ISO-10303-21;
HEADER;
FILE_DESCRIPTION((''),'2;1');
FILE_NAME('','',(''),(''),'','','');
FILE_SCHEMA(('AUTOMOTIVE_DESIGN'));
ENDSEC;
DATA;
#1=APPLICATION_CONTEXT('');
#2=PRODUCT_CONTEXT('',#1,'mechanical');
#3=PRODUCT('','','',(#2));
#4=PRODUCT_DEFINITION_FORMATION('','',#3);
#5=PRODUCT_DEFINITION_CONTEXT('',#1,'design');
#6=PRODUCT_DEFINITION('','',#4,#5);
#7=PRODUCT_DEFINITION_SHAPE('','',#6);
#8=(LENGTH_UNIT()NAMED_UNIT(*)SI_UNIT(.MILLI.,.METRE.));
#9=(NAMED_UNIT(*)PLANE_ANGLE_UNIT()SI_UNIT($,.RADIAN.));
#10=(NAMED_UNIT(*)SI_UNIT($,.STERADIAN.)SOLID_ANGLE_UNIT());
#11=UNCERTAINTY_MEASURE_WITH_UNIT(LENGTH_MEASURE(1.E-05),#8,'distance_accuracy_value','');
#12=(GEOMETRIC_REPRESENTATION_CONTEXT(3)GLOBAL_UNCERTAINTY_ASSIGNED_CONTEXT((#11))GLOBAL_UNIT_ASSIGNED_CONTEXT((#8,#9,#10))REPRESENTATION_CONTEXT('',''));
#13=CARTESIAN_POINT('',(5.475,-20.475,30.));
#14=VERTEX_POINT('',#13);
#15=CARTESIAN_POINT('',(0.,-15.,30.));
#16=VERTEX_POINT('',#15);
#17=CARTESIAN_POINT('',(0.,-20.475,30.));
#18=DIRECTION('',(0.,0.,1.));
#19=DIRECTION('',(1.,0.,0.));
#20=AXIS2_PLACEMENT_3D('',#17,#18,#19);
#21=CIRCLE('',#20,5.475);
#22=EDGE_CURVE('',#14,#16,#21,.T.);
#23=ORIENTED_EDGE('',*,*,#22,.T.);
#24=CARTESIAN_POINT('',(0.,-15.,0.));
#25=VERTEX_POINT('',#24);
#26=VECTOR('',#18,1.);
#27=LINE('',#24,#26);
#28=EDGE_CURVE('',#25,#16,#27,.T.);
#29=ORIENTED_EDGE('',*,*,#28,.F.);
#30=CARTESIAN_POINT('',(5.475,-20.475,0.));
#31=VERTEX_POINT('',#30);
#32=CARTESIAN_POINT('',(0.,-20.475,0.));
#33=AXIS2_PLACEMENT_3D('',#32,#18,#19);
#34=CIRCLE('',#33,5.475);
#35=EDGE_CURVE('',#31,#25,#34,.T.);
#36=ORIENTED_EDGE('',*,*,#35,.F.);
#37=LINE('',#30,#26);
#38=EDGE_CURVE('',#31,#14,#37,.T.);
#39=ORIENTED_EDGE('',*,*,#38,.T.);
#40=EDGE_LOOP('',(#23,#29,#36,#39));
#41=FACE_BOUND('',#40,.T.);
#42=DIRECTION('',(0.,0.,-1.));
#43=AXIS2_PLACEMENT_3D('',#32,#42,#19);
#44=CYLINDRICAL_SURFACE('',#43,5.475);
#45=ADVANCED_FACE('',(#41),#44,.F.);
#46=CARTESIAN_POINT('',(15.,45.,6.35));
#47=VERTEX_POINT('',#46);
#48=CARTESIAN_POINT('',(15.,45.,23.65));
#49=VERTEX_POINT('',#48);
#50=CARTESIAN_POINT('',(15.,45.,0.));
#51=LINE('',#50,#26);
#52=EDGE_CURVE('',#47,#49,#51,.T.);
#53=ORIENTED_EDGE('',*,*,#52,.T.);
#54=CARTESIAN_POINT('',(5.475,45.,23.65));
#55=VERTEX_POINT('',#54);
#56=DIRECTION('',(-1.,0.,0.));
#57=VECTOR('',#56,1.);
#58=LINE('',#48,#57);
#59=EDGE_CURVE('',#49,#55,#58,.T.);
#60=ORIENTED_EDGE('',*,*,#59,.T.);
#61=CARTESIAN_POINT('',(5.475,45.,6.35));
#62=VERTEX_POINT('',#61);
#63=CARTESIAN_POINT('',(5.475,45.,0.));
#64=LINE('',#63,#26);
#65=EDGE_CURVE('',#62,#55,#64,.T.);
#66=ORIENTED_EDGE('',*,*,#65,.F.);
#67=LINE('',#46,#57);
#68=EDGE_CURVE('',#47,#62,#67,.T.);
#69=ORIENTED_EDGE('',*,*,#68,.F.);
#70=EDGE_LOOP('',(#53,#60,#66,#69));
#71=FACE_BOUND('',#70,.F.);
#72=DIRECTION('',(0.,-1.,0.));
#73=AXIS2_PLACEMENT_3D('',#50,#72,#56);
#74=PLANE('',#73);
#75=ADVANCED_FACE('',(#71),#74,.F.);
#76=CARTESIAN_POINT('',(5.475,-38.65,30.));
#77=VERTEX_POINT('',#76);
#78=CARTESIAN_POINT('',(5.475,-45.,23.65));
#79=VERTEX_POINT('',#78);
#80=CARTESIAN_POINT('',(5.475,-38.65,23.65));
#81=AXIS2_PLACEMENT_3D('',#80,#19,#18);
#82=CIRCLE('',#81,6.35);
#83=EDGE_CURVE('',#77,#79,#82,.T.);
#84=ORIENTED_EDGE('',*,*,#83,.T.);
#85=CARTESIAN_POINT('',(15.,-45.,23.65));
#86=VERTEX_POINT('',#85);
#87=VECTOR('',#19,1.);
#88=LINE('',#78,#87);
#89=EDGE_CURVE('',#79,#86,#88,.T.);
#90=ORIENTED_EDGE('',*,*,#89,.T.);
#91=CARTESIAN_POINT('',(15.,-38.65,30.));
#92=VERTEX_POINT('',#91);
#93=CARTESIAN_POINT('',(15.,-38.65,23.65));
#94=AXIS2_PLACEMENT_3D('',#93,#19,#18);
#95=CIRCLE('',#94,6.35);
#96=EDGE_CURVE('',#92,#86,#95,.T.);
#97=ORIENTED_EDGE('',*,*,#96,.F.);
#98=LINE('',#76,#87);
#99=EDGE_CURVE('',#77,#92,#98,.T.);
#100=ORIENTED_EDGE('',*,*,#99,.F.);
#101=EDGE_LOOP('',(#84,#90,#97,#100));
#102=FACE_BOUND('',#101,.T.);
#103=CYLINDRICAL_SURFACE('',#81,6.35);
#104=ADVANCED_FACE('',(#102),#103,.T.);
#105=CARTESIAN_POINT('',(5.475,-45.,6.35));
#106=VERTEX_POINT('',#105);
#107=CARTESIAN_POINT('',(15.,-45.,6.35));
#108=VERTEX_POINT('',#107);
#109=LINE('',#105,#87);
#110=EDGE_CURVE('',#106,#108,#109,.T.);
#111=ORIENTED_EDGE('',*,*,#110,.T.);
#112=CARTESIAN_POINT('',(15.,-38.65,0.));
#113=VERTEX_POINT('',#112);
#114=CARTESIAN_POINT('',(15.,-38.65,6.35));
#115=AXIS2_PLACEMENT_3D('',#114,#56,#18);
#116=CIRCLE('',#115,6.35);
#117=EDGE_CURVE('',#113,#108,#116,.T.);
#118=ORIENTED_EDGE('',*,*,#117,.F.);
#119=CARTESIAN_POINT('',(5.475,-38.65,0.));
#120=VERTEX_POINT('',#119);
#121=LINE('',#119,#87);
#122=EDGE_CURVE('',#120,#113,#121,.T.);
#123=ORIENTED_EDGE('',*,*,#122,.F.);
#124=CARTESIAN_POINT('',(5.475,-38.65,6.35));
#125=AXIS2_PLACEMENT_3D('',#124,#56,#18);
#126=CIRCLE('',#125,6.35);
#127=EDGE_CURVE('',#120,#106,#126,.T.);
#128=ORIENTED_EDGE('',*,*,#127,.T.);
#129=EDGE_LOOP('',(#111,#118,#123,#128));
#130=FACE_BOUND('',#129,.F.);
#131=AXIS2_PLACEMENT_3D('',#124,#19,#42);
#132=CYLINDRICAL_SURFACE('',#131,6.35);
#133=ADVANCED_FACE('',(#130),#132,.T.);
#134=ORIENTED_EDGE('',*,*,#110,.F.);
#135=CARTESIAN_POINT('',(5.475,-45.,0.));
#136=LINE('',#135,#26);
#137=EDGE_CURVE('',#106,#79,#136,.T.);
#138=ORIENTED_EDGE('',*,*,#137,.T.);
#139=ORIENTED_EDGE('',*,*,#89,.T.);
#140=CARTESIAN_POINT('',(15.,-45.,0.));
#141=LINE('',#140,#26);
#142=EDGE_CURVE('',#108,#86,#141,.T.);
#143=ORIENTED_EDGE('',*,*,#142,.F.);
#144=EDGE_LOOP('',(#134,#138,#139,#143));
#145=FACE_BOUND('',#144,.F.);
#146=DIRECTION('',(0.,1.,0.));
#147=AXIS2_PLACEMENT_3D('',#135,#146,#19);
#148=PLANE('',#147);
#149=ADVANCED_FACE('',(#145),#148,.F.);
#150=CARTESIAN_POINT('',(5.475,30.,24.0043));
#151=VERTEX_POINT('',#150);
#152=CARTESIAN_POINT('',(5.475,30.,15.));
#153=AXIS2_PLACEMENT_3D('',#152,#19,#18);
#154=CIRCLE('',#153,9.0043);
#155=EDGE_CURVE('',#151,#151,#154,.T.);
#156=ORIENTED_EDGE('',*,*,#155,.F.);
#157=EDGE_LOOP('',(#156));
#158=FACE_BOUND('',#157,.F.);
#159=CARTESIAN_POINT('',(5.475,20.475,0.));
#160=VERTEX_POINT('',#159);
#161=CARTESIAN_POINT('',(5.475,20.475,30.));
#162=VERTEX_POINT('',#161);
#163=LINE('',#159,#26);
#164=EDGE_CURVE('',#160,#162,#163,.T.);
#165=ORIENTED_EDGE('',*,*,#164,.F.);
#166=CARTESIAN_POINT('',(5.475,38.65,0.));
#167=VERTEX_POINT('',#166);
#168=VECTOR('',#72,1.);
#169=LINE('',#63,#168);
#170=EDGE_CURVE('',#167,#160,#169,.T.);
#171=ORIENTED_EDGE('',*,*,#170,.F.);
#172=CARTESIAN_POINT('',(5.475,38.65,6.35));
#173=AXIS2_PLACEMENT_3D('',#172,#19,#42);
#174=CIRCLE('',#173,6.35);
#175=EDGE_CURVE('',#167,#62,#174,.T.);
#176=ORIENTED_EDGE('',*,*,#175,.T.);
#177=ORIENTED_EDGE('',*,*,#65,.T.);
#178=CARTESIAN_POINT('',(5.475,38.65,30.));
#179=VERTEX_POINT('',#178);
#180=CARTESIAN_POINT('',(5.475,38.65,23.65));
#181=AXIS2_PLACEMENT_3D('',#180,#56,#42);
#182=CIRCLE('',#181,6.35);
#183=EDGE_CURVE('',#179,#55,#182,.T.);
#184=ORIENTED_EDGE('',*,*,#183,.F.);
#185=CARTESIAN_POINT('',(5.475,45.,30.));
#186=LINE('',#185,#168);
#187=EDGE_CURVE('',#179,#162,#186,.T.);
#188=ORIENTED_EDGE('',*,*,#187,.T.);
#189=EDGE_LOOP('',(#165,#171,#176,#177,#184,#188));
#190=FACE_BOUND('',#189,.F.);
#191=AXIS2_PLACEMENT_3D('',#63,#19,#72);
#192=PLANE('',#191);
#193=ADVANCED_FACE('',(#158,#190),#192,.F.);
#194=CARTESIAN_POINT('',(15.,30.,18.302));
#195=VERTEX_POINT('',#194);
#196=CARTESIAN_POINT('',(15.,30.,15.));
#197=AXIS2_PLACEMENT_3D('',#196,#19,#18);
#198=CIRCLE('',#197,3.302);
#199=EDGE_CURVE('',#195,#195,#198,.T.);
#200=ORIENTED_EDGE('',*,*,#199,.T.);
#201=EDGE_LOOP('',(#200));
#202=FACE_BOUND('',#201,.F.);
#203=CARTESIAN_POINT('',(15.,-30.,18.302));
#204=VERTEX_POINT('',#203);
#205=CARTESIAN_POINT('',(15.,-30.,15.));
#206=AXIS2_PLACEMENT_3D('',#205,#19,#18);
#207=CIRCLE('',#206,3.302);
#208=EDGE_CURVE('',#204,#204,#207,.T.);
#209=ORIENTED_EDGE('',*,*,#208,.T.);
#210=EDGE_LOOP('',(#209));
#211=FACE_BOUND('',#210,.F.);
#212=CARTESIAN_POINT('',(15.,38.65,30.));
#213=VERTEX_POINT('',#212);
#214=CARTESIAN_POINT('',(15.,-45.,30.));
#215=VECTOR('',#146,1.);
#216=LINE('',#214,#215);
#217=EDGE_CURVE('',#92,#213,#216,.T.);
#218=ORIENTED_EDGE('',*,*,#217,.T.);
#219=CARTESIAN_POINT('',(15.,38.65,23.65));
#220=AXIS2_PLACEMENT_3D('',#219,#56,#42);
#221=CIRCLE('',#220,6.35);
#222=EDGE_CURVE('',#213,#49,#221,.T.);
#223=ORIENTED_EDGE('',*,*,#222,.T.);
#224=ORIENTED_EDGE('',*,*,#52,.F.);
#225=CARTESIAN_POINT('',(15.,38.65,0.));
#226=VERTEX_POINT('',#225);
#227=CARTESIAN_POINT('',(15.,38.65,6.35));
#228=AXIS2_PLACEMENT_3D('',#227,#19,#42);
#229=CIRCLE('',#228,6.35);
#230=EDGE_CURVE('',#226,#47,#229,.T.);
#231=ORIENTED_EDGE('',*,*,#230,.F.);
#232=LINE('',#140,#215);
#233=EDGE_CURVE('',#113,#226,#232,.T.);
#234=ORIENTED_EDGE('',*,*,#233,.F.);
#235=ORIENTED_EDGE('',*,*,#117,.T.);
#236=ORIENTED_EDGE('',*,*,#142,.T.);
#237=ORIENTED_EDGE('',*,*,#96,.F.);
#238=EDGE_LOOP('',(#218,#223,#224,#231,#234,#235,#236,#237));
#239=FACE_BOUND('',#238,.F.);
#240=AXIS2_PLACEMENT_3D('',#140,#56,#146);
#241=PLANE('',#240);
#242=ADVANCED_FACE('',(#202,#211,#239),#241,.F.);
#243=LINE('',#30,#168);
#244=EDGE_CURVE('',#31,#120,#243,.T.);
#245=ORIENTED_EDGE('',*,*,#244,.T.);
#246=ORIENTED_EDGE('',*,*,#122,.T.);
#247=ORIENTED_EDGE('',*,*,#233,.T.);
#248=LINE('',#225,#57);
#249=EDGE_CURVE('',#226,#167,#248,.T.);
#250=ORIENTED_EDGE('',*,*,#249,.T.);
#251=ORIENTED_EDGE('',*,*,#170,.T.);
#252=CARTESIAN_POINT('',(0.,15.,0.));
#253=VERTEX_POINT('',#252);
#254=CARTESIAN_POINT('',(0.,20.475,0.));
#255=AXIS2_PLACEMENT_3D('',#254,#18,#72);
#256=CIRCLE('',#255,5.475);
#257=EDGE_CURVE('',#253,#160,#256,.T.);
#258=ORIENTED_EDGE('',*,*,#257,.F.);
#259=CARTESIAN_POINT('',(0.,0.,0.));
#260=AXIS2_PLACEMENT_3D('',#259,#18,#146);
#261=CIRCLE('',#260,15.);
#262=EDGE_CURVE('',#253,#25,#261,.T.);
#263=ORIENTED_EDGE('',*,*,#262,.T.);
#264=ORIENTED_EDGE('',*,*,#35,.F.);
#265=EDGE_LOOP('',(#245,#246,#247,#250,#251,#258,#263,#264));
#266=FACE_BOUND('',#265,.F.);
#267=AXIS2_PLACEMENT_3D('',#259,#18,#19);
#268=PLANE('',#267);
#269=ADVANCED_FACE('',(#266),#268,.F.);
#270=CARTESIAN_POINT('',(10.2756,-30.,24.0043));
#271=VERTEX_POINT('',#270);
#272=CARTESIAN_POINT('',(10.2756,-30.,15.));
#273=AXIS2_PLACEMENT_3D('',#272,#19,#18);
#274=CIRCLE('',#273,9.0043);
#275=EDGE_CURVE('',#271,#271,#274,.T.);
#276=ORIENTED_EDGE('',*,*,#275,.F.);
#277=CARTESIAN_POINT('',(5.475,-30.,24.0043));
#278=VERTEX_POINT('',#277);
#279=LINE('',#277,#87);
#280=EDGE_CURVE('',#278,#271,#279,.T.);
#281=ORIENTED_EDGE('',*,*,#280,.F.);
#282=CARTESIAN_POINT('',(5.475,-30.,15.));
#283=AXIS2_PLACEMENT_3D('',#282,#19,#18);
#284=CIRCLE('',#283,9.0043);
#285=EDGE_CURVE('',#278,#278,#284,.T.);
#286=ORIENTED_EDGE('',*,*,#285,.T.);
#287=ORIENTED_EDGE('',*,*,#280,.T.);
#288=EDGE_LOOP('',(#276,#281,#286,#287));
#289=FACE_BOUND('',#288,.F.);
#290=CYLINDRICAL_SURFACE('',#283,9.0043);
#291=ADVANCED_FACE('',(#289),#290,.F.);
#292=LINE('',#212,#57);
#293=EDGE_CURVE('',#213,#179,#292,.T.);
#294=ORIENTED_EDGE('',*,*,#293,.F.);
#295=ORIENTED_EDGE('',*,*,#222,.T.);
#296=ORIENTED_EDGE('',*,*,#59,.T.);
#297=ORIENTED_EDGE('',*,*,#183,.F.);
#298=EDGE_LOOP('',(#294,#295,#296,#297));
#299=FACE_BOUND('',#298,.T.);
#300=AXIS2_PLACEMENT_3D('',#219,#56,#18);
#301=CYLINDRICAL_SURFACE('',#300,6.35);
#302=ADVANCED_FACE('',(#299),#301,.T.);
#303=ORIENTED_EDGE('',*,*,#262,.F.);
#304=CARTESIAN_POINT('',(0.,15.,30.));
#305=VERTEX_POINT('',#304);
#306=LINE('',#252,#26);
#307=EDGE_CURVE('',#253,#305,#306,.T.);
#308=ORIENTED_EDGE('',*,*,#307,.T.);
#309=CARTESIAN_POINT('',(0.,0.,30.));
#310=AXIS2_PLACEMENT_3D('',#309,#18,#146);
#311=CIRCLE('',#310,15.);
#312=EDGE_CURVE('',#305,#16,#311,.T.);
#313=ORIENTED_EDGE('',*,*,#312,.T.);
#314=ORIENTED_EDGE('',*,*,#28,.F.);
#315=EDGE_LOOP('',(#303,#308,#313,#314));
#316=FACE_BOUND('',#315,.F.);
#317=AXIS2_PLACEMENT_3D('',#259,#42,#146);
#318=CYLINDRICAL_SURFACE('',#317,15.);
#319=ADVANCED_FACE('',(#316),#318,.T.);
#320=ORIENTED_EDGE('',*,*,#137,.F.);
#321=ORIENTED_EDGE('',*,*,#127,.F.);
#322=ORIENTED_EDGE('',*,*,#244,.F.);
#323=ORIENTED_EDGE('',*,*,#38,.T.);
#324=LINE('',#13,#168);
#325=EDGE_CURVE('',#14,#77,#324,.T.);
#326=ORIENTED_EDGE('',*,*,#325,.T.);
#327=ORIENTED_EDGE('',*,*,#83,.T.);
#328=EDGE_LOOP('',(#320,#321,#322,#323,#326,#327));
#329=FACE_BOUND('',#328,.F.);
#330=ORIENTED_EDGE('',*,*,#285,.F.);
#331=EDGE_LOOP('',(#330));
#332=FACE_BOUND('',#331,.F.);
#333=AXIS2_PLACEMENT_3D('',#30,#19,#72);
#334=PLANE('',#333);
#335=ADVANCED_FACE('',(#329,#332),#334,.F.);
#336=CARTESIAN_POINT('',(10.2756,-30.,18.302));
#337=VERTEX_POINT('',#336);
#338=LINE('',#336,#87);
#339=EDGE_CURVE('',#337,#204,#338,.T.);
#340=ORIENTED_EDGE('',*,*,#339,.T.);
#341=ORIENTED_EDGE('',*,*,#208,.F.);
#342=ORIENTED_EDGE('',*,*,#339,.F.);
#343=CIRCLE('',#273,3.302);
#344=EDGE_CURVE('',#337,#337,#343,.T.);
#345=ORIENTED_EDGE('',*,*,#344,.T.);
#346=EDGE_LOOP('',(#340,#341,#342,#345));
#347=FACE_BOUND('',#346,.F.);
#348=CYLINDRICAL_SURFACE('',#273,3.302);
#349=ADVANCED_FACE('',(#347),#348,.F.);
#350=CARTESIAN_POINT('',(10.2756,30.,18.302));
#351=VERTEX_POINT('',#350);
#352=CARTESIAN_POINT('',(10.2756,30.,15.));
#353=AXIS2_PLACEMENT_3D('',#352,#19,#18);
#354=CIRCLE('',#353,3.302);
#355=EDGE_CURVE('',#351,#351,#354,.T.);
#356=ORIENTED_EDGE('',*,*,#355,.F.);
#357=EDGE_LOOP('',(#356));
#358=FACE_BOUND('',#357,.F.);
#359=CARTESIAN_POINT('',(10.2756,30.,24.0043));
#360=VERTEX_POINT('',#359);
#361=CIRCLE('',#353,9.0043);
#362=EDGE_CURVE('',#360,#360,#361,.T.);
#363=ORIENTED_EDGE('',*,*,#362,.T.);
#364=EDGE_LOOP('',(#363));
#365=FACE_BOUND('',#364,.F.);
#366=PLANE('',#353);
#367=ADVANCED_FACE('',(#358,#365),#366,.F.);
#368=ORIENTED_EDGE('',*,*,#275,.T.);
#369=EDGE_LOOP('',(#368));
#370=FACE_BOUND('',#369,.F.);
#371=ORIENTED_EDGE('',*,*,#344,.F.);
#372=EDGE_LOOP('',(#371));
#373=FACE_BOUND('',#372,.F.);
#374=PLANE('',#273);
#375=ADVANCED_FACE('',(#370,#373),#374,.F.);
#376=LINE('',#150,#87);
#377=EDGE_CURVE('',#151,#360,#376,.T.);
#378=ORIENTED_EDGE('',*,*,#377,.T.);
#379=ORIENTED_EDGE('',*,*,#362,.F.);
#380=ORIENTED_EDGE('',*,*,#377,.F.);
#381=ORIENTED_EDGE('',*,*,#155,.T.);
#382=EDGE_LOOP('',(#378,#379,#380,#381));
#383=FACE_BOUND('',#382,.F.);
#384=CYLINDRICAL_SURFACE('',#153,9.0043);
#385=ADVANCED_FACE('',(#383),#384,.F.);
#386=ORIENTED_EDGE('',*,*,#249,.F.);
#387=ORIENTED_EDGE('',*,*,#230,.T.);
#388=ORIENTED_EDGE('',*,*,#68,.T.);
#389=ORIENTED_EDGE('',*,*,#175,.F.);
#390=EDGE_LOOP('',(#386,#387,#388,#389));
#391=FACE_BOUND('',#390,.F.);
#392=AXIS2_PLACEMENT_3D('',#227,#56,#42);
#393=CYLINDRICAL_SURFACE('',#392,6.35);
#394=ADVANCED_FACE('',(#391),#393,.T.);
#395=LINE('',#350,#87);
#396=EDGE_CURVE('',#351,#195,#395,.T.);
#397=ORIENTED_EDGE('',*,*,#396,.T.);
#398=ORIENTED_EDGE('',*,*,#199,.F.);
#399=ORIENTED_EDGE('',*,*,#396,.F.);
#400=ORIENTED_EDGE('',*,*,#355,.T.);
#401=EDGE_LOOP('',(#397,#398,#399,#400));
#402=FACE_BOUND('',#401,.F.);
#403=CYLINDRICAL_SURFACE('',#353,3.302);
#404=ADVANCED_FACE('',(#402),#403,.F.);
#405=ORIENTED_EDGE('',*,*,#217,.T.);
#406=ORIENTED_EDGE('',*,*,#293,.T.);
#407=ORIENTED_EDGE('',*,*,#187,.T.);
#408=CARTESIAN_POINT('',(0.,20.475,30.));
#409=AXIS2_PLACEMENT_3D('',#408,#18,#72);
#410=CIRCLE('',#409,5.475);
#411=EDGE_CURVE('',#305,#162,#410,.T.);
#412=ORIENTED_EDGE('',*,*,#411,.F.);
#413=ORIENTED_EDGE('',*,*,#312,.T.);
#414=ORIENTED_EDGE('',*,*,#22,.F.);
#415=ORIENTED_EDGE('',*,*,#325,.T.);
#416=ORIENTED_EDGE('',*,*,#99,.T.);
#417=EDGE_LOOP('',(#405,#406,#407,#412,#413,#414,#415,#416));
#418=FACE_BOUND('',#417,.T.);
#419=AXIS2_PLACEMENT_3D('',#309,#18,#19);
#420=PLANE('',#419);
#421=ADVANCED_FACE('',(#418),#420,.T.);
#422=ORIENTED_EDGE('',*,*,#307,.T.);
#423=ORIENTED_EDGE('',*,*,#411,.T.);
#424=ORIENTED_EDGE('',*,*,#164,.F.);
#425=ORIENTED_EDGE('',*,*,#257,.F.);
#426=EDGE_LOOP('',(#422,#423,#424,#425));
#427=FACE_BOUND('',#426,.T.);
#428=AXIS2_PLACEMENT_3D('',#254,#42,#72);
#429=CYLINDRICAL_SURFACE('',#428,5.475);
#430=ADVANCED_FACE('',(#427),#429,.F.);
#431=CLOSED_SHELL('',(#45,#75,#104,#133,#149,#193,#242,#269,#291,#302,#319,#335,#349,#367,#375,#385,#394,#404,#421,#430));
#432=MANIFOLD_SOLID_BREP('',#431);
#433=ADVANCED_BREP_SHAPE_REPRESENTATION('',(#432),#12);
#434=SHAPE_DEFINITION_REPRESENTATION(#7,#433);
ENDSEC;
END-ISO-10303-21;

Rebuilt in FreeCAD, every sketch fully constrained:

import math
import FreeCAD as App
import Part
import Sketcher

V = App.Vector
Q = App.Units.Quantity


def edges_at(feature, points):
    """Names of the edges that pass closest to the given points."""
    edges = feature.Shape.Edges
    near = lambda p: min(range(len(edges)), key=lambda i: edges[i].distToShape(Part.Vertex(*p))[0])
    return sorted({f"Edge{near(p) + 1}" for p in points})

doc = App.newDocument("Part")
params = doc.addObject("Spreadsheet::Sheet", "Params")
for row, (alias, value) in enumerate([
    ("sketch1_width", "0.375 in"),
    ("pad1_length", "1.1811024 in"),
    ("sketch2_diameter", "0.26 in"),
    ("hole_diameter", "0.26 in"),
    ("hole_cbore_diameter", "0.709 in"),
    ("hole_cbore_depth", "0.189 in"),
    ("fillet_radius", "0.25 in"),
], start=1):
    params.set(f"A{row}", alias)
    params.set(f"B{row}", "=" + value)
    params.setAlias(f"B{row}", alias)

body = doc.addObject("PartDesign::Body", "Body")

# Sketch on XY plane
sketch1 = body.newObject("Sketcher::SketchObject", "Sketch")
sketch1.AttachmentSupport = (doc.getObject("XY_Plane"), [""])
sketch1.MapMode = "FlatFace"
sketch1.addGeometry(Part.LineSegment(V(5.475, -20.475, 0), V(5.475, -45, 0)), False)
sketch1.addGeometry(Part.LineSegment(V(5.475, -45, 0), V(15, -45, 0)), False)
sketch1.addGeometry(Part.LineSegment(V(15, -45, 0), V(15, 45, 0)), False)
sketch1.addGeometry(Part.LineSegment(V(15, 45, 0), V(5.475, 45, 0)), False)
sketch1.addGeometry(Part.LineSegment(V(5.475, 45, 0), V(5.475, 20.475, 0)), False)
sketch1.addGeometry(Part.ArcOfCircle(Part.Circle(V(0, 20.475, 0), V(0, 0, 1), 5.475), math.radians(-90), math.radians(0)), False)
sketch1.addGeometry(Part.ArcOfCircle(Part.Circle(V(0, 0, 0), V(0, 0, 1), 15), math.radians(90), math.radians(270)), False)
sketch1.addGeometry(Part.ArcOfCircle(Part.Circle(V(0, -20.475, 0), V(0, 0, 1), 5.475), math.radians(0), math.radians(90)), False)
sketch1.addConstraint(Sketcher.Constraint("Coincident", 0, 2, 1, 1))
sketch1.addConstraint(Sketcher.Constraint("Coincident", 1, 2, 2, 1))
sketch1.addConstraint(Sketcher.Constraint("Coincident", 2, 2, 3, 1))
sketch1.addConstraint(Sketcher.Constraint("Coincident", 3, 2, 4, 1))
sketch1.addConstraint(Sketcher.Constraint("Tangent", 4, 2, 5, 2))
sketch1.addConstraint(Sketcher.Constraint("Tangent", 5, 1, 6, 1))
sketch1.addConstraint(Sketcher.Constraint("Tangent", 6, 2, 7, 2))
sketch1.addConstraint(Sketcher.Constraint("Tangent", 7, 1, 0, 1))
sketch1.addConstraint(Sketcher.Constraint("Vertical", 0))
sketch1.addConstraint(Sketcher.Constraint("Horizontal", 1))
sketch1.addConstraint(Sketcher.Constraint("Vertical", 2))
sketch1.addConstraint(Sketcher.Constraint("Horizontal", 3))
sketch1.addConstraint(Sketcher.Constraint("Vertical", 4))
sketch1.addConstraint(Sketcher.Constraint("Coincident", 6, 3, -1, 1))
sketch1.addConstraint(Sketcher.Constraint("Equal", 5, 7))
sketch1.addConstraint(Sketcher.Constraint("Symmetric", 0, 2, 3, 2, -1))
sketch1.addConstraint(Sketcher.Constraint("PointOnObject", 5, 3, -2))
sketch1.addConstraint(Sketcher.Constraint("DistanceX", 1, 1, 1, 2, Q("0.375 in")))
sketch1.addConstraint(Sketcher.Constraint("Radius", 6, Q("15 mm")))
sketch1.addConstraint(Sketcher.Constraint("DistanceY", 2, 1, 2, 2, Q("3.5433 in")))
sketch1.addConstraint(Sketcher.Constraint("DistanceX", -1, 1, 1, 2, Q("15 mm")))
sketch1.setExpression("Constraints[17]", "Params.sketch1_width")
pad1 = body.newObject("PartDesign::Pad", "Pad")
pad1.Profile = sketch1
pad1.setExpression("Length", "Params.pad1_length")

# Sketch on YZ plane
sketch2 = body.newObject("Sketcher::SketchObject", "Sketch001")
sketch2.AttachmentSupport = (doc.getObject("YZ_Plane"), [""])
sketch2.MapMode = "FlatFace"
sketch2.AttachmentOffset = App.Placement(V(0, 0, 5.475), App.Rotation())
sketch2.addGeometry(Part.Circle(V(30, 15, 0), V(0, 0, 1), 3.302), False)
sketch2.addGeometry(Part.Circle(V(-30, 15, 0), V(0, 0, 1), 3.302), False)
sketch2.addConstraint(Sketcher.Constraint("Equal", 0, 1))
sketch2.addConstraint(Sketcher.Constraint("Symmetric", 0, 3, 1, 3, -2))
sketch2.addConstraint(Sketcher.Constraint("Diameter", 0, Q("0.26 in")))
sketch2.addConstraint(Sketcher.Constraint("DistanceX", -1, 1, 0, 3, Q("1.1811 in")))
sketch2.addConstraint(Sketcher.Constraint("DistanceY", -1, 1, 0, 3, Q("15 mm")))
sketch2.setExpression("Constraints[2]", "Params.sketch2_diameter")
doc.recompute()
hole = body.newObject("PartDesign::Hole", "Hole")
hole.Profile = sketch2
hole.ThreadType = "None"
hole.setExpression("Diameter", "Params.hole_diameter")
hole.DepthType = "ThroughAll"
hole.HoleCutType = "Counterbore"
hole.setExpression("HoleCutDiameter", "Params.hole_cbore_diameter")
hole.setExpression("HoleCutDepth", "Params.hole_cbore_depth")
hole.Reversed = True
doc.recompute()

fillet = body.newObject("PartDesign::Fillet", "Fillet")
fillet.Base = (hole, edges_at(hole, [
    (10.238, -45, 30),
    (10.238, 45, 30),
    (10.238, 45, 0),
    (10.238, -45, 0),
]))
fillet.setExpression("Radius", "Params.fillet_radius")

doc.recompute()
